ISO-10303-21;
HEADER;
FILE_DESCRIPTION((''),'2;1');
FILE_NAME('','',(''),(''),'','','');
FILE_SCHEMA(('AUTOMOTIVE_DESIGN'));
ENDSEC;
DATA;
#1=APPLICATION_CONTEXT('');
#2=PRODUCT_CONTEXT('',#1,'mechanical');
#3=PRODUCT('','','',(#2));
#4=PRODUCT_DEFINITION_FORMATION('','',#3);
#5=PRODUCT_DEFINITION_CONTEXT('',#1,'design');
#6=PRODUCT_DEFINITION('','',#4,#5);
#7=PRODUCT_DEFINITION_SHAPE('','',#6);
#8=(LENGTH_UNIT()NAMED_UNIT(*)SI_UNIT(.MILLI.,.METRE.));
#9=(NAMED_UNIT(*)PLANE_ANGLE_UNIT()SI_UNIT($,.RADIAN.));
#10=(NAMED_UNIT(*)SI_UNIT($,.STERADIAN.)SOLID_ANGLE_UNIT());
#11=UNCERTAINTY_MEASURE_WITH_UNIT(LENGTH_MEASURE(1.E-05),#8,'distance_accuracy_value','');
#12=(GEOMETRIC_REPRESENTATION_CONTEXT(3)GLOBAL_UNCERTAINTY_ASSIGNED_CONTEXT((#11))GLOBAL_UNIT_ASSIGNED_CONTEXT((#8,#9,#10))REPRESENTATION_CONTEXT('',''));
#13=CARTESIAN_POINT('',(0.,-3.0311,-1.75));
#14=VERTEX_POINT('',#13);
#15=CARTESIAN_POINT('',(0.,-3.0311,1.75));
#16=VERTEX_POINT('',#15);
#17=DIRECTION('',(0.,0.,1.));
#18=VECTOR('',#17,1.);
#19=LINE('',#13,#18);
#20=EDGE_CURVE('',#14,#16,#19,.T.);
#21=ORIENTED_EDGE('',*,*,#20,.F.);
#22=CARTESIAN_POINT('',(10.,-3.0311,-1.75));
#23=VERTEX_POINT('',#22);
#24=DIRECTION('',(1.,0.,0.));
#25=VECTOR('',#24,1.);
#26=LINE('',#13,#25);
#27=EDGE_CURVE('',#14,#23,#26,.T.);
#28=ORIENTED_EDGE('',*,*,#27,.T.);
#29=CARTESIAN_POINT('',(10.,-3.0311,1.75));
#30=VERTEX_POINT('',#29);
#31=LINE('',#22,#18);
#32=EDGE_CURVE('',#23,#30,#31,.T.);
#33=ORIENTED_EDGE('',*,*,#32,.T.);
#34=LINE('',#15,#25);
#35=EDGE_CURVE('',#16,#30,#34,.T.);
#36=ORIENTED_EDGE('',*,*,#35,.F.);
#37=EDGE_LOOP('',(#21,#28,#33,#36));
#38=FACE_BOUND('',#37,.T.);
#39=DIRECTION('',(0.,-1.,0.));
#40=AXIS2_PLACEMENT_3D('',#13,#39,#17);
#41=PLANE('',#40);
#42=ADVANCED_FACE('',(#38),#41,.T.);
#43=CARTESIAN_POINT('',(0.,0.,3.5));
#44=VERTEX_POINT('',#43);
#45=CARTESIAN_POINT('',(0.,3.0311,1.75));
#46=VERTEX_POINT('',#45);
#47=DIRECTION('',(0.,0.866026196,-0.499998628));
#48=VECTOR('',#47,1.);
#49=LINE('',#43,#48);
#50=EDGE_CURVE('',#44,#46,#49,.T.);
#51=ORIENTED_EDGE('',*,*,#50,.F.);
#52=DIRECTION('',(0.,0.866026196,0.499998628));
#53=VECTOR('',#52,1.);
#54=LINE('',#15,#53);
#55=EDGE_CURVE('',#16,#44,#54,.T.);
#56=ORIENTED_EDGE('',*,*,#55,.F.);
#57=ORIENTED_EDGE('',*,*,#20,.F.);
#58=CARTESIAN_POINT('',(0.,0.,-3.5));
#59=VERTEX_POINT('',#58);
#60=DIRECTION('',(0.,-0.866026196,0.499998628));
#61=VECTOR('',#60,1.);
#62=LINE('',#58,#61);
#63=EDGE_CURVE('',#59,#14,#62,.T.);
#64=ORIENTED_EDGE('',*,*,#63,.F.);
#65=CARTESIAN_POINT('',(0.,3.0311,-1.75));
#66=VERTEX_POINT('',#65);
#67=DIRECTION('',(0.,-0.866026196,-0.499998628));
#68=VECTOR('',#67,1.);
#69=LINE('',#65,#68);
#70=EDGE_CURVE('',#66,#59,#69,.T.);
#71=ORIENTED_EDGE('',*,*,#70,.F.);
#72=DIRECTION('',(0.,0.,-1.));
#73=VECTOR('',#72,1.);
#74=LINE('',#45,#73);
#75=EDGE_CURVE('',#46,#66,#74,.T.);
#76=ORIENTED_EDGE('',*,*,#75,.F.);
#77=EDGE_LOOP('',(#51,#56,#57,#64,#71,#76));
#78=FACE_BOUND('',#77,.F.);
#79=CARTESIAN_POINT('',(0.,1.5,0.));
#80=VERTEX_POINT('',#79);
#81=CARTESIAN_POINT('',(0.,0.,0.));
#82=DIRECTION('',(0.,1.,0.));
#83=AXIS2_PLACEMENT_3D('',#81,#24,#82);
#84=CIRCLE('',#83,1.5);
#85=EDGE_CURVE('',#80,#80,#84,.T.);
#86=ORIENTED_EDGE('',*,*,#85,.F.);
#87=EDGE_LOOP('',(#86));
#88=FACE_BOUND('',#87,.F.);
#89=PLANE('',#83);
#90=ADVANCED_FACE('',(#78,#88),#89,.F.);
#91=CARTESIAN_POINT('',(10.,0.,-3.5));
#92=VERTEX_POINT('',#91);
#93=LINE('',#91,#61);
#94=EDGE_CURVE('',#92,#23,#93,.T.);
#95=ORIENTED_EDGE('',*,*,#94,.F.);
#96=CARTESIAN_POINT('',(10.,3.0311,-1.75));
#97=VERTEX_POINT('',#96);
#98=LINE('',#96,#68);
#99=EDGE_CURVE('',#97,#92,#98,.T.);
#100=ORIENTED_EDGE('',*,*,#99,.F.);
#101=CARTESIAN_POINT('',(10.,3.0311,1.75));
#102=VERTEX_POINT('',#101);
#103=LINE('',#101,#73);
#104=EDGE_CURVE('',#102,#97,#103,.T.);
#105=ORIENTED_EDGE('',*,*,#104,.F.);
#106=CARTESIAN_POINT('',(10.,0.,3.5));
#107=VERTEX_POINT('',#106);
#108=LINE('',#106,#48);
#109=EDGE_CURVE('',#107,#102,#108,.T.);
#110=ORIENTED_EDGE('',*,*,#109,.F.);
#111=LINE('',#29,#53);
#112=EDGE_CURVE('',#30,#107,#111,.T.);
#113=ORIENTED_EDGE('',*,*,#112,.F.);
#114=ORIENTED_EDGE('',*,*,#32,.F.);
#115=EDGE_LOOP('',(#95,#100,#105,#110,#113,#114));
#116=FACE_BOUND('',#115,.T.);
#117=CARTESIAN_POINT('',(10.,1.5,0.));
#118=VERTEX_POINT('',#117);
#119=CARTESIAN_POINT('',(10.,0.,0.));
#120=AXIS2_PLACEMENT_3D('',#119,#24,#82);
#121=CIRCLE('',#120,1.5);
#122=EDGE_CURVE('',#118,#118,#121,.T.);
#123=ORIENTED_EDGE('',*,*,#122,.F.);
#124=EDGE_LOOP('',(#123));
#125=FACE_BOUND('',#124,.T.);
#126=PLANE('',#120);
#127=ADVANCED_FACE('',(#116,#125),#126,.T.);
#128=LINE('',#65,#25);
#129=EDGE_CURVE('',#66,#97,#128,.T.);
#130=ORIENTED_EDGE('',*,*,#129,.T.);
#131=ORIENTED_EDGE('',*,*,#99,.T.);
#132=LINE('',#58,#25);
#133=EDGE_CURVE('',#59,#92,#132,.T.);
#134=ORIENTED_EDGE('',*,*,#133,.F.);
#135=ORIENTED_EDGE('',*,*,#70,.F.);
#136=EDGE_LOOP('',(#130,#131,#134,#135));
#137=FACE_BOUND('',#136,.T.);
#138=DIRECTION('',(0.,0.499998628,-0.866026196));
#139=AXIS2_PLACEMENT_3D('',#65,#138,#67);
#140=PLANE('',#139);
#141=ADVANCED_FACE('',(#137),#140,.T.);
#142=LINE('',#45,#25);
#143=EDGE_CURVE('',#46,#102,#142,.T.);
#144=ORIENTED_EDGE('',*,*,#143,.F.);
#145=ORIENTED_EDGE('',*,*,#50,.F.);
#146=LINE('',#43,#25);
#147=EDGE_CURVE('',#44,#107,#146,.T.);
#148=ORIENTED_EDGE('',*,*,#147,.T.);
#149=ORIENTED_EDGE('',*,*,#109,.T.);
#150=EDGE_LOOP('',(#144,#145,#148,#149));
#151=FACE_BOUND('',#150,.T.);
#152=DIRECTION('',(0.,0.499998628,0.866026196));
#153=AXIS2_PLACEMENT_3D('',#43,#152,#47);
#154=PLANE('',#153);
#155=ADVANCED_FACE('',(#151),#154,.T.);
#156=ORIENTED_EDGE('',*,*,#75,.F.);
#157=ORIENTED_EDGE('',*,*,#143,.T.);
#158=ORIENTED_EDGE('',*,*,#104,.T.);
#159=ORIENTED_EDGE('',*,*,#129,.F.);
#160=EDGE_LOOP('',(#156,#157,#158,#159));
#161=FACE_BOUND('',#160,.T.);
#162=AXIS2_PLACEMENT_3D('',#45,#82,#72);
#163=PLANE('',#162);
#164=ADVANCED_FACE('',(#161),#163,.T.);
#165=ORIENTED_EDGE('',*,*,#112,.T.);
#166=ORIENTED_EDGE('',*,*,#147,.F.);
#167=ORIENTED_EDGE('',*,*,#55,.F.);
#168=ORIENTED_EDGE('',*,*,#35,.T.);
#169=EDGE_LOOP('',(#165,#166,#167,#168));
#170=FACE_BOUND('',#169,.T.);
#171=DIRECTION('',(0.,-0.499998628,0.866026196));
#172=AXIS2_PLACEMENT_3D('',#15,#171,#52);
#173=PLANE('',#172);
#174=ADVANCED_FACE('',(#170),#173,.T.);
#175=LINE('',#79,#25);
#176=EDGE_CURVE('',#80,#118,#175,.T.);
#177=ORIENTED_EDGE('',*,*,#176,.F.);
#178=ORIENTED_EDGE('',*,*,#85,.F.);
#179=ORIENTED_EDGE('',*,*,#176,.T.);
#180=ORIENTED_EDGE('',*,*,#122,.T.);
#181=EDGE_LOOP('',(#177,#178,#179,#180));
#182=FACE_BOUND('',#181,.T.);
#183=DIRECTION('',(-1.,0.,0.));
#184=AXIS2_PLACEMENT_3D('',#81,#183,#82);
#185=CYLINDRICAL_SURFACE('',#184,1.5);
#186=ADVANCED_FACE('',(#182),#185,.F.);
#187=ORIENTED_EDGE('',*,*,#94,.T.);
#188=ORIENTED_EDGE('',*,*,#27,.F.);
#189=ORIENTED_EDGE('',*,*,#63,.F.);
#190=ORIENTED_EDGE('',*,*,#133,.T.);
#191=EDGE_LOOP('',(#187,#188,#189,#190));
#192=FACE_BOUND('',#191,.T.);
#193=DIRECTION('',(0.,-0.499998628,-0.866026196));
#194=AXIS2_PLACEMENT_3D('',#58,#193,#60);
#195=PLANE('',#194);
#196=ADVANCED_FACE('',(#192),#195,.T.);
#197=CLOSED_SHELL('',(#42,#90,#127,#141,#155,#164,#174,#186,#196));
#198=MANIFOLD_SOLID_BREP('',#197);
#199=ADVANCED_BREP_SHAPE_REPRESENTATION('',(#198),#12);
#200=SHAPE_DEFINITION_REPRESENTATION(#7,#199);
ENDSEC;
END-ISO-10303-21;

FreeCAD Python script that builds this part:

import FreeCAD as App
import Part
import Sketcher

V = App.Vector
Q = App.Units.Quantity


def add_polygon(sketch, points):
    """Adds a closed chain of lines whose ends are joined by coincident constraints."""
    first, n = sketch.GeometryCount, len(points)
    for a, b in zip(points, points[1:] + points[:1]):
        sketch.addGeometry(Part.LineSegment(App.Vector(*a, 0), App.Vector(*b, 0)), False)
    for i in range(n):
        sketch.addConstraint(Sketcher.Constraint("Coincident", first + i, 2, first + (i + 1) % n, 1))

doc = App.newDocument("Part")
params = doc.addObject("Spreadsheet::Sheet", "Params")
for row, (alias, value) in enumerate([
    ("sketch1_diameter", "3 mm"),
    ("sketch1_height", "3.5 mm"),
    ("pad1_length", "10 mm"),
], start=1):
    params.set(f"A{row}", alias)
    params.set(f"B{row}", "=" + value)
    params.setAlias(f"B{row}", alias)

body = doc.addObject("PartDesign::Body", "Body")

# Sketch on YZ plane
sketch1 = body.newObject("Sketcher::SketchObject", "Sketch")
sketch1.AttachmentSupport = (doc.getObject("YZ_Plane"), [""])
sketch1.MapMode = "FlatFace"
add_polygon(sketch1, [(3, 1.8), (0, 3.5), (-3, 1.8), (-3, -1.8), (0, -3.5), (3, -1.8)])  # lines 0-5
sketch1.addGeometry(Part.Circle(V(0, 0, 0), V(0, 0, 1), 1.5), False)  # 6
sketch1.addConstraint([
    Sketcher.Constraint("Vertical", 2),
    Sketcher.Constraint("Vertical", 5),
    Sketcher.Constraint("Coincident", 6, 3, -1, 1),
    Sketcher.Constraint("Symmetric", 0, 2, 3, 2, -1, 1),
    Sketcher.Constraint("Symmetric", 1, 2, 4, 2, -1, 1),
    Sketcher.Constraint("PointOnObject", 0, 2, -2),
    Sketcher.Constraint("Parallel", 0, 3),
    Sketcher.Constraint("Horizontal", 2, 2, 4, 2),
    Sketcher.Constraint("Diameter", 6, Q("3 mm")),
    Sketcher.Constraint("DistanceY", 3, 2, 0, 2, Q("7 mm")),
    Sketcher.Constraint("Angle", 0, Q("150 deg")),
    Sketcher.Constraint("DistanceY", 2, 2, 2, 1, Q("3.5 mm")),
])
sketch1.setExpression("Constraints[14]", "Params.sketch1_diameter")
sketch1.setExpression("Constraints[17]", "Params.sketch1_height")
pad1 = body.newObject("PartDesign::Pad", "Pad")
pad1.Profile = sketch1
pad1.setExpression("Length", "Params.pad1_length")

doc.recompute()
